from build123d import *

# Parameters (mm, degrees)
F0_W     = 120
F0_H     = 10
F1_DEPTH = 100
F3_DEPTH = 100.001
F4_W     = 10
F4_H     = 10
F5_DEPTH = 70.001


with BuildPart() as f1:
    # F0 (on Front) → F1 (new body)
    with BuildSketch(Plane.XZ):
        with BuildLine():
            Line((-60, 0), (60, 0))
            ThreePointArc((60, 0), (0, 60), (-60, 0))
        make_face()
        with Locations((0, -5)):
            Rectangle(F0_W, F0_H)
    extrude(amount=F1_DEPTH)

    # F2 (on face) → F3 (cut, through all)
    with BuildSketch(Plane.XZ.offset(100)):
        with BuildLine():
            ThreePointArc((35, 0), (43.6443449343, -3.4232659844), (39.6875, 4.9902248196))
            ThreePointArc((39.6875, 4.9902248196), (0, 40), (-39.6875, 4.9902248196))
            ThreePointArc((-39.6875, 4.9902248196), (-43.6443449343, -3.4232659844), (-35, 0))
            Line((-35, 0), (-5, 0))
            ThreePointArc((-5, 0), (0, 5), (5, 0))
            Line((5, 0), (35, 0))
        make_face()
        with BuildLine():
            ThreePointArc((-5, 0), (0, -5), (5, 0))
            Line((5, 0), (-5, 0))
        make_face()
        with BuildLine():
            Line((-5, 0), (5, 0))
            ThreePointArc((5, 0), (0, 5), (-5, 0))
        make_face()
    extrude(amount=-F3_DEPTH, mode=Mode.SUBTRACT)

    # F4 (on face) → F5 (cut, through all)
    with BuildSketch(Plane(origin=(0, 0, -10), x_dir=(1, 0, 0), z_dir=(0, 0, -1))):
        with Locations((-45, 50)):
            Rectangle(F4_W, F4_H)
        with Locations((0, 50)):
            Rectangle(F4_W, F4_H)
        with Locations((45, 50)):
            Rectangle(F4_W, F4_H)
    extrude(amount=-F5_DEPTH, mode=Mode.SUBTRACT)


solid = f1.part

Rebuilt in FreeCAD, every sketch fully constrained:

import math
import FreeCAD as App
import Part
import Sketcher
Q = App.Units.Quantity


def add_polygon(sketch, points):
    """Adds a closed chain of lines whose ends are joined by coincident constraints."""
    first, n = sketch.GeometryCount, len(points)
    for a, b in zip(points, points[1:] + points[:1]):
        sketch.addGeometry(Part.LineSegment(App.Vector(*a, 0), App.Vector(*b, 0)), False)
    for i in range(n):
        sketch.addConstraint(Sketcher.Constraint("Coincident", first + i, 2, first + (i + 1) % n, 1))

doc = App.newDocument("Part")
body = doc.addObject("PartDesign::Body", "Body")

# Sketch on XZ plane
sketch1 = doc.addObject("Sketcher::SketchObject", "Sketch")
body.addObject(sketch1)
sketch1.AttachmentSupport = (doc.XZ_Plane, [""])
sketch1.MapMode = "FlatFace"
sketch1.addGeometry(Part.ArcOfCircle(Part.Circle(App.Vector(0, 0, 0), App.Vector(0, 0, 1), 60), math.radians(0), math.radians(180)), False)
sketch1.addGeometry(Part.LineSegment(App.Vector(-60, 0, 0), App.Vector(-60, -10, 0)), False)
sketch1.addGeometry(Part.LineSegment(App.Vector(-60, -10, 0), App.Vector(60, -10, 0)), False)
sketch1.addGeometry(Part.LineSegment(App.Vector(60, -10, 0), App.Vector(60, 0, 0)), False)
sketch1.addConstraint(Sketcher.Constraint("Tangent", 0, 2, 1, 1))
sketch1.addConstraint(Sketcher.Constraint("Coincident", 1, 2, 2, 1))
sketch1.addConstraint(Sketcher.Constraint("Coincident", 2, 2, 3, 1))
sketch1.addConstraint(Sketcher.Constraint("Tangent", 3, 2, 0, 1))
sketch1.addConstraint(Sketcher.Constraint("Vertical", 1))
sketch1.addConstraint(Sketcher.Constraint("Horizontal", 2))
sketch1.addConstraint(Sketcher.Constraint("Vertical", 3))
sketch1.addConstraint(Sketcher.Constraint("Coincident", 0, 3, -1, 1))
sketch1.addConstraint(Sketcher.Constraint("Radius", 0, Q("60 mm")))
sketch1.addConstraint(Sketcher.Constraint("DistanceY", 1, 2, 1, 1, Q("10 mm")))
pad1 = doc.addObject("PartDesign::Pad", "Pad")
body.addObject(pad1)
pad1.Profile = sketch1
pad1.Length = 100

# Sketch on XZ plane
sketch2 = doc.addObject("Sketcher::SketchObject", "Sketch001")
body.addObject(sketch2)
sketch2.AttachmentSupport = (doc.XZ_Plane, [""])
sketch2.MapMode = "FlatFace"
sketch2.AttachmentOffset = App.Placement(App.Vector(0, 0, 100), App.Rotation())
sketch2.addGeometry(Part.ArcOfCircle(Part.Circle(App.Vector(40, 0, 0), App.Vector(0, 0, 1), 5), math.radians(180), math.radians(453.583322)), False)
sketch2.addGeometry(Part.ArcOfCircle(Part.Circle(App.Vector(0, 0, 0), App.Vector(0, 0, 1), 40), math.radians(7.166643), math.radians(172.833357)), False)
sketch2.addGeometry(Part.ArcOfCircle(Part.Circle(App.Vector(-40, 0, 0), App.Vector(0, 0, 1), 5), math.radians(86.416678), math.radians(360)), False)
sketch2.addGeometry(Part.LineSegment(App.Vector(-35, 0, 0), App.Vector(-5, 0, 0)), False)
sketch2.addGeometry(Part.ArcOfCircle(Part.Circle(App.Vector(0, 0, 0), App.Vector(0, 0, 1), 5), math.radians(180), math.radians(360)), False)
sketch2.addGeometry(Part.LineSegment(App.Vector(5, 0, 0), App.Vector(35, 0, 0)), False)
sketch2.addConstraint(Sketcher.Constraint("Coincident", 0, 2, 1, 1))
sketch2.addConstraint(Sketcher.Constraint("Coincident", 1, 2, 2, 1))
sketch2.addConstraint(Sketcher.Constraint("Coincident", 2, 2, 3, 1))
sketch2.addConstraint(Sketcher.Constraint("Coincident", 3, 2, 4, 1))
sketch2.addConstraint(Sketcher.Constraint("Coincident", 4, 2, 5, 1))
sketch2.addConstraint(Sketcher.Constraint("Coincident", 5, 2, 0, 1))
sketch2.addConstraint(Sketcher.Constraint("Horizontal", 3))
sketch2.addConstraint(Sketcher.Constraint("Horizontal", 5))
sketch2.addConstraint(Sketcher.Constraint("Coincident", 1, 3, -1, 1))
sketch2.addConstraint(Sketcher.Constraint("Coincident", 4, 3, -1, 1))
sketch2.addConstraint(Sketcher.Constraint("Equal", 0, 2))
sketch2.addConstraint(Sketcher.Constraint("Equal", 2, 4))
sketch2.addConstraint(Sketcher.Constraint("Symmetric", 0, 3, 2, 3, -1, 1))
sketch2.addConstraint(Sketcher.Constraint("PointOnObject", 0, 3, -1))
sketch2.addConstraint(Sketcher.Constraint("PointOnObject", 2, 2, -1))
sketch2.addConstraint(Sketcher.Constraint("PointOnObject", 4, 2, -1))
sketch2.addConstraint(Sketcher.Constraint("Radius", 0, Q("5 mm")))
sketch2.addConstraint(Sketcher.Constraint("Radius", 1, Q("40 mm")))
sketch2.addConstraint(Sketcher.Constraint("DistanceX", 3, 1, 3, 2, Q("30 mm")))
pocket1 = doc.addObject("PartDesign::Pocket", "Pocket")
body.addObject(pocket1)
pocket1.Profile = sketch2
pocket1.Type = "ThroughAll"

# Sketch on XY plane
sketch3 = doc.addObject("Sketcher::SketchObject", "Sketch002")
body.addObject(sketch3)
sketch3.AttachmentSupport = (doc.XY_Plane, [""])
sketch3.MapMode = "FlatFace"
sketch3.AttachmentOffset = App.Placement(App.Vector(0, 0, -10), App.Rotation())
add_polygon(sketch3, [(-50, -55), (-50, -45), (-40, -45), (-40, -55)])  # lines 0-3
add_polygon(sketch3, [(-5, -55), (-5, -45), (5, -45), (5, -55)])  # lines 4-7
add_polygon(sketch3, [(40, -55), (40, -45), (50, -45), (50, -55)])  # lines 8-11
sketch3.addConstraint(Sketcher.Constraint("Vertical", 0))
sketch3.addConstraint(Sketcher.Constraint("Horizontal", 1))
sketch3.addConstraint(Sketcher.Constraint("Vertical", 2))
sketch3.addConstraint(Sketcher.Constraint("Horizontal", 3))
sketch3.addConstraint(Sketcher.Constraint("Vertical", 4))
sketch3.addConstraint(Sketcher.Constraint("Horizontal", 5))
sketch3.addConstraint(Sketcher.Constraint("Vertical", 6))
sketch3.addConstraint(Sketcher.Constraint("Horizontal", 7))
sketch3.addConstraint(Sketcher.Constraint("Vertical", 8))
sketch3.addConstraint(Sketcher.Constraint("Horizontal", 9))
sketch3.addConstraint(Sketcher.Constraint("Vertical", 10))
sketch3.addConstraint(Sketcher.Constraint("Horizontal", 11))
sketch3.addConstraint(Sketcher.Constraint("Symmetric", 1, 2, 8, 2, -2))
sketch3.addConstraint(Sketcher.Constraint("Symmetric", 3, 2, 10, 2, -2))
sketch3.addConstraint(Sketcher.Constraint("Horizontal", 1, 2, 4, 2))
sketch3.addConstraint(Sketcher.Constraint("Horizontal", 3, 2, 6, 2))
sketch3.addConstraint(Sketcher.Constraint("Equal", 3, 5))
sketch3.addConstraint(Sketcher.Constraint("Equal", 11, 0))
sketch3.addConstraint(Sketcher.Constraint("DistanceX", 1, 1, 1, 2, Q("10 mm")))
sketch3.addConstraint(Sketcher.Constraint("DistanceX", 0, 2, -1, 1, Q("50 mm")))
sketch3.addConstraint(Sketcher.Constraint("DistanceY", 0, 2, -1, 1, Q("45 mm")))
sketch3.addConstraint(Sketcher.Constraint("DistanceX", 4, 2, -1, 1, Q("5 mm")))
pocket2 = doc.addObject("PartDesign::Pocket", "Pocket001")
body.addObject(pocket2)
pocket2.Profile = sketch3
pocket2.Type = "ThroughAll"
pocket2.Reversed = True

doc.recompute()
